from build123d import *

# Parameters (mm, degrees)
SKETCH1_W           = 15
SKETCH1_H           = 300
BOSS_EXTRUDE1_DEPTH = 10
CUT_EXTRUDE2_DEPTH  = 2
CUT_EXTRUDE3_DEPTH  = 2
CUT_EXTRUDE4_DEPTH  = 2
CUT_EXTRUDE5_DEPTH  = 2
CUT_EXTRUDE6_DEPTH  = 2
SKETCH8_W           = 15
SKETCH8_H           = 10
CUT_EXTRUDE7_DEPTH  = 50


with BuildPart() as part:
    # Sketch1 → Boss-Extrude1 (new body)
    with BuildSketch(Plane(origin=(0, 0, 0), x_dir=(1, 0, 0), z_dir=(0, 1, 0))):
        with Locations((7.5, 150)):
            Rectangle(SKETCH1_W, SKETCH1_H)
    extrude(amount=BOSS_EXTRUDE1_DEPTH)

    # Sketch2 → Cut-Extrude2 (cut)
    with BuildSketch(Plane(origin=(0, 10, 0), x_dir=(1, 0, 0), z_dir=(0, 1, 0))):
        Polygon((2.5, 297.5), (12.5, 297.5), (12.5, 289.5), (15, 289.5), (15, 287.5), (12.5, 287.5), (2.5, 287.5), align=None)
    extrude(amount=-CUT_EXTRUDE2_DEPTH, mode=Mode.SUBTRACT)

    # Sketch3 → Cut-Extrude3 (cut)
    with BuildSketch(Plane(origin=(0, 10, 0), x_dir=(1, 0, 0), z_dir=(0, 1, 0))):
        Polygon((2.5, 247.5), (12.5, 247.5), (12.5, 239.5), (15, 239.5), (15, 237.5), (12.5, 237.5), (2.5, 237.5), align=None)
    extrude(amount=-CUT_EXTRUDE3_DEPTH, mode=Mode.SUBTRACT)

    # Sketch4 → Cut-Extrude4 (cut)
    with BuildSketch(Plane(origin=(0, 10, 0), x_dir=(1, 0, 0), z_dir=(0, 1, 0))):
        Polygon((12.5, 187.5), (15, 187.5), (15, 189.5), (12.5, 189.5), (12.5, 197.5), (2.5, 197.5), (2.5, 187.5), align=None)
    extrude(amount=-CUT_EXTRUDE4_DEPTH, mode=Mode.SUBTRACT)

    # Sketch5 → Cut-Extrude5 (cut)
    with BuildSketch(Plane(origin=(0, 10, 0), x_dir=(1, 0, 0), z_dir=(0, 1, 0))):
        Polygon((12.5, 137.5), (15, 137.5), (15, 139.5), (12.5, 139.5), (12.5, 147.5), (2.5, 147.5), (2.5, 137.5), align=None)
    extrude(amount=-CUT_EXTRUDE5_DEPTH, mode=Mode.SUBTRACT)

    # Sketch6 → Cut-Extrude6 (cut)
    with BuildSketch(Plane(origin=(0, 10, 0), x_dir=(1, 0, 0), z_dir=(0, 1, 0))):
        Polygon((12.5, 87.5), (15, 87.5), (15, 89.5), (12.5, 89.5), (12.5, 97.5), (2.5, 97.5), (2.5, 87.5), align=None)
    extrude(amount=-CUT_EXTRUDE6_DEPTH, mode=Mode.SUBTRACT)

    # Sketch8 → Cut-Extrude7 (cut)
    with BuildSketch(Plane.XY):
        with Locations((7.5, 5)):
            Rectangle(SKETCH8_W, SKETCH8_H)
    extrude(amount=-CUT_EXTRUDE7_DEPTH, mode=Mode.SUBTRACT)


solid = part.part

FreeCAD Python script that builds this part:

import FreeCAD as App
import Part
import Sketcher

V = App.Vector

doc = App.newDocument("Part")
params = doc.addObject("Spreadsheet::Sheet", "Params")
for row, (alias, value) in enumerate([
    ("sketch1_width", "15 mm"),
    ("sketch1_height", "300 mm"),
    ("pad1_length", "10 mm"),
    ("sketch2_width", "10 mm"),
    ("sketch2_height", "2 mm"),
    ("sketch2_width2", "12.5 mm"),
    ("pocket1_length", "2 mm"),
    ("sketch3_width", "10 mm"),
    ("sketch3_height", "2 mm"),
    ("sketch3_width2", "12.5 mm"),
    ("pocket2_length", "2 mm"),
    ("sketch4_width", "10 mm"),
    ("sketch4_height", "2 mm"),
    ("sketch4_width2", "2.5 mm"),
    ("pocket3_length", "2 mm"),
    ("sketch5_width", "10 mm"),
    ("sketch5_height", "2 mm"),
    ("sketch5_width2", "2.5 mm"),
    ("pocket4_length", "2 mm"),
    ("sketch6_width", "10 mm"),
    ("sketch6_height", "2 mm"),
    ("sketch6_width2", "2.5 mm"),
    ("pocket5_length", "2 mm"),
    ("sketch7_width", "15 mm"),
    ("sketch7_height", "10 mm"),
    ("pocket6_length", "50 mm"),
], start=1):
    params.set(f"A{row}", alias)
    params.set(f"B{row}", "=" + value)
    params.setAlias(f"B{row}", alias)

body = doc.addObject("PartDesign::Body", "Body")

# Sketch on XZ plane
sketch1 = body.newObject("Sketcher::SketchObject", "Sketch")
sketch1.AttachmentSupport = (doc.getObject("XZ_Plane"), [""])
sketch1.MapMode = "FlatFace"
sketch1.addGeometry(Part.LineSegment(V(0, -300, 0), V(0, 0, 0)), False)
sketch1.addGeometry(Part.LineSegment(V(0, 0, 0), V(15, 0, 0)), False)
sketch1.addGeometry(Part.LineSegment(V(15, 0, 0), V(15, -300, 0)), False)
sketch1.addGeometry(Part.LineSegment(V(15, -300, 0), V(0, -300, 0)), False)
sketch1.addConstraint(Sketcher.Constraint("Coincident", 0, 2, 1, 1))
sketch1.addConstraint(Sketcher.Constraint("Coincident", 1, 2, 2, 1))
sketch1.addConstraint(Sketcher.Constraint("Coincident", 2, 2, 3, 1))
sketch1.addConstraint(Sketcher.Constraint("Coincident", 3, 2, 0, 1))
sketch1.addConstraint(Sketcher.Constraint("Vertical", 0))
sketch1.addConstraint(Sketcher.Constraint("Horizontal", 1))
sketch1.addConstraint(Sketcher.Constraint("Vertical", 2))
sketch1.addConstraint(Sketcher.Constraint("Horizontal", 3))
sketch1.addConstraint(Sketcher.Constraint("Coincident", 0, 2, -1, 1))
sketch1.addConstraint(Sketcher.Constraint("DistanceX", 1, 1, 1, 2, 15.0))
sketch1.addConstraint(Sketcher.Constraint("DistanceY", 0, 1, 0, 2, 300.0))
sketch1.setExpression("Constraints[9]", "Params.sketch1_width")
sketch1.setExpression("Constraints[10]", "Params.sketch1_height")
pad1 = body.newObject("PartDesign::Pad", "Pad")
pad1.Profile = sketch1
pad1.setExpression("Length", "Params.pad1_length")
pad1.Reversed = True

# Sketch on XZ plane
sketch2 = body.newObject("Sketcher::SketchObject", "Sketch001")
sketch2.AttachmentSupport = (doc.getObject("XZ_Plane"), [""])
sketch2.MapMode = "FlatFace"
sketch2.AttachmentOffset = App.Placement(V(0, 0, -10), App.Rotation())
sketch2.addGeometry(Part.LineSegment(V(12.5, -297.5, 0), V(2.5, -297.5, 0)), False)
sketch2.addGeometry(Part.LineSegment(V(2.5, -297.5, 0), V(2.5, -287.5, 0)), False)
sketch2.addGeometry(Part.LineSegment(V(2.5, -287.5, 0), V(15, -287.5, 0)), False)
sketch2.addGeometry(Part.LineSegment(V(15, -287.5, 0), V(15, -289.5, 0)), False)
sketch2.addGeometry(Part.LineSegment(V(15, -289.5, 0), V(12.5, -289.5, 0)), False)
sketch2.addGeometry(Part.LineSegment(V(12.5, -289.5, 0), V(12.5, -297.5, 0)), False)
sketch2.addConstraint(Sketcher.Constraint("Coincident", 0, 2, 1, 1))
sketch2.addConstraint(Sketcher.Constraint("Coincident", 1, 2, 2, 1))
sketch2.addConstraint(Sketcher.Constraint("Coincident", 2, 2, 3, 1))
sketch2.addConstraint(Sketcher.Constraint("Coincident", 3, 2, 4, 1))
sketch2.addConstraint(Sketcher.Constraint("Coincident", 4, 2, 5, 1))
sketch2.addConstraint(Sketcher.Constraint("Coincident", 5, 2, 0, 1))
sketch2.addConstraint(Sketcher.Constraint("Horizontal", 0))
sketch2.addConstraint(Sketcher.Constraint("Vertical", 1))
sketch2.addConstraint(Sketcher.Constraint("Horizontal", 2))
sketch2.addConstraint(Sketcher.Constraint("Vertical", 3))
sketch2.addConstraint(Sketcher.Constraint("Horizontal", 4))
sketch2.addConstraint(Sketcher.Constraint("Vertical", 5))
sketch2.addConstraint(Sketcher.Constraint("Equal", 0, 1))
sketch2.addConstraint(Sketcher.Constraint("DistanceX", 0, 2, 0, 1, 10.0))
sketch2.addConstraint(Sketcher.Constraint("DistanceY", 3, 2, 3, 1, 2.0))
sketch2.addConstraint(Sketcher.Constraint("DistanceX", 2, 1, 2, 2, 12.5))
sketch2.addConstraint(Sketcher.Constraint("DistanceX", -1, 1, 2, 2, 15.0))
sketch2.addConstraint(Sketcher.Constraint("DistanceY", 0, 2, -1, 1, 297.5))
sketch2.setExpression("Constraints[13]", "Params.sketch2_width")
sketch2.setExpression("Constraints[14]", "Params.sketch2_height")
sketch2.setExpression("Constraints[15]", "Params.sketch2_width2")
pocket1 = body.newObject("PartDesign::Pocket", "Pocket")
pocket1.Profile = sketch2
pocket1.setExpression("Length", "Params.pocket1_length")
pocket1.Reversed = True

# Sketch on XZ plane
sketch3 = body.newObject("Sketcher::SketchObject", "Sketch002")
sketch3.AttachmentSupport = (doc.getObject("XZ_Plane"), [""])
sketch3.MapMode = "FlatFace"
sketch3.AttachmentOffset = App.Placement(V(0, 0, -10), App.Rotation())
sketch3.addGeometry(Part.LineSegment(V(12.5, -247.5, 0), V(2.5, -247.5, 0)), False)
sketch3.addGeometry(Part.LineSegment(V(2.5, -247.5, 0), V(2.5, -237.5, 0)), False)
sketch3.addGeometry(Part.LineSegment(V(2.5, -237.5, 0), V(15, -237.5, 0)), False)
sketch3.addGeometry(Part.LineSegment(V(15, -237.5, 0), V(15, -239.5, 0)), False)
sketch3.addGeometry(Part.LineSegment(V(15, -239.5, 0), V(12.5, -239.5, 0)), False)
sketch3.addGeometry(Part.LineSegment(V(12.5, -239.5, 0), V(12.5, -247.5, 0)), False)
sketch3.addConstraint(Sketcher.Constraint("Coincident", 0, 2, 1, 1))
sketch3.addConstraint(Sketcher.Constraint("Coincident", 1, 2, 2, 1))
sketch3.addConstraint(Sketcher.Constraint("Coincident", 2, 2, 3, 1))
sketch3.addConstraint(Sketcher.Constraint("Coincident", 3, 2, 4, 1))
sketch3.addConstraint(Sketcher.Constraint("Coincident", 4, 2, 5, 1))
sketch3.addConstraint(Sketcher.Constraint("Coincident", 5, 2, 0, 1))
sketch3.addConstraint(Sketcher.Constraint("Horizontal", 0))
sketch3.addConstraint(Sketcher.Constraint("Vertical", 1))
sketch3.addConstraint(Sketcher.Constraint("Horizontal", 2))
sketch3.addConstraint(Sketcher.Constraint("Vertical", 3))
sketch3.addConstraint(Sketcher.Constraint("Horizontal", 4))
sketch3.addConstraint(Sketcher.Constraint("Vertical", 5))
sketch3.addConstraint(Sketcher.Constraint("Equal", 0, 1))
sketch3.addConstraint(Sketcher.Constraint("DistanceX", 0, 2, 0, 1, 10.0))
sketch3.addConstraint(Sketcher.Constraint("DistanceY", 3, 2, 3, 1, 2.0))
sketch3.addConstraint(Sketcher.Constraint("DistanceX", 2, 1, 2, 2, 12.5))
sketch3.addConstraint(Sketcher.Constraint("DistanceX", -1, 1, 2, 2, 15.0))
sketch3.addConstraint(Sketcher.Constraint("DistanceY", 0, 2, -1, 1, 247.5))
sketch3.setExpression("Constraints[13]", "Params.sketch3_width")
sketch3.setExpression("Constraints[14]", "Params.sketch3_height")
sketch3.setExpression("Constraints[15]", "Params.sketch3_width2")
pocket2 = body.newObject("PartDesign::Pocket", "Pocket001")
pocket2.Profile = sketch3
pocket2.setExpression("Length", "Params.pocket2_length")
pocket2.Reversed = True

# Sketch on XZ plane
sketch4 = body.newObject("Sketcher::SketchObject", "Sketch003")
sketch4.AttachmentSupport = (doc.getObject("XZ_Plane"), [""])
sketch4.MapMode = "FlatFace"
sketch4.AttachmentOffset = App.Placement(V(0, 0, -10), App.Rotation())
sketch4.addGeometry(Part.LineSegment(V(15, -187.5, 0), V(15, -189.5, 0)), False)
sketch4.addGeometry(Part.LineSegment(V(15, -189.5, 0), V(12.5, -189.5, 0)), False)
sketch4.addGeometry(Part.LineSegment(V(12.5, -189.5, 0), V(12.5, -197.5, 0)), False)
sketch4.addGeometry(Part.LineSegment(V(12.5, -197.5, 0), V(2.5, -197.5, 0)), False)
sketch4.addGeometry(Part.LineSegment(V(2.5, -197.5, 0), V(2.5, -187.5, 0)), False)
sketch4.addGeometry(Part.LineSegment(V(2.5, -187.5, 0), V(15, -187.5, 0)), False)
sketch4.addConstraint(Sketcher.Constraint("Coincident", 0, 2, 1, 1))
sketch4.addConstraint(Sketcher.Constraint("Coincident", 1, 2, 2, 1))
sketch4.addConstraint(Sketcher.Constraint("Coincident", 2, 2, 3, 1))
sketch4.addConstraint(Sketcher.Constraint("Coincident", 3, 2, 4, 1))
sketch4.addConstraint(Sketcher.Constraint("Coincident", 4, 2, 5, 1))
sketch4.addConstraint(Sketcher.Constraint("Coincident", 5, 2, 0, 1))
sketch4.addConstraint(Sketcher.Constraint("Vertical", 0))
sketch4.addConstraint(Sketcher.Constraint("Horizontal", 1))
sketch4.addConstraint(Sketcher.Constraint("Vertical", 2))
sketch4.addConstraint(Sketcher.Constraint("Horizontal", 3))
sketch4.addConstraint(Sketcher.Constraint("Vertical", 4))
sketch4.addConstraint(Sketcher.Constraint("Horizontal", 5))
sketch4.addConstraint(Sketcher.Constraint("Equal", 3, 4))
sketch4.addConstraint(Sketcher.Constraint("DistanceX", 3, 2, 3, 1, 10.0))
sketch4.addConstraint(Sketcher.Constraint("DistanceY", 0, 2, 0, 1, 2.0))
sketch4.addConstraint(Sketcher.Constraint("DistanceX", 1, 2, 1, 1, 2.5))
sketch4.addConstraint(Sketcher.Constraint("DistanceX", -1, 1, 0, 2, 15.0))
sketch4.addConstraint(Sketcher.Constraint("DistanceY", 0, 2, -1, 1, 189.5))
sketch4.setExpression("Constraints[13]", "Params.sketch4_width")
sketch4.setExpression("Constraints[14]", "Params.sketch4_height")
sketch4.setExpression("Constraints[15]", "Params.sketch4_width2")
pocket3 = body.newObject("PartDesign::Pocket", "Pocket002")
pocket3.Profile = sketch4
pocket3.setExpression("Length", "Params.pocket3_length")
pocket3.Reversed = True

# Sketch on XZ plane
sketch5 = body.newObject("Sketcher::SketchObject", "Sketch004")
sketch5.AttachmentSupport = (doc.getObject("XZ_Plane"), [""])
sketch5.MapMode = "FlatFace"
sketch5.AttachmentOffset = App.Placement(V(0, 0, -10), App.Rotation())
sketch5.addGeometry(Part.LineSegment(V(15, -137.5, 0), V(15, -139.5, 0)), False)
sketch5.addGeometry(Part.LineSegment(V(15, -139.5, 0), V(12.5, -139.5, 0)), False)
sketch5.addGeometry(Part.LineSegment(V(12.5, -139.5, 0), V(12.5, -147.5, 0)), False)
sketch5.addGeometry(Part.LineSegment(V(12.5, -147.5, 0), V(2.5, -147.5, 0)), False)
sketch5.addGeometry(Part.LineSegment(V(2.5, -147.5, 0), V(2.5, -137.5, 0)), False)
sketch5.addGeometry(Part.LineSegment(V(2.5, -137.5, 0), V(15, -137.5, 0)), False)
sketch5.addConstraint(Sketcher.Constraint("Coincident", 0, 2, 1, 1))
sketch5.addConstraint(Sketcher.Constraint("Coincident", 1, 2, 2, 1))
sketch5.addConstraint(Sketcher.Constraint("Coincident", 2, 2, 3, 1))
sketch5.addConstraint(Sketcher.Constraint("Coincident", 3, 2, 4, 1))
sketch5.addConstraint(Sketcher.Constraint("Coincident", 4, 2, 5, 1))
sketch5.addConstraint(Sketcher.Constraint("Coincident", 5, 2, 0, 1))
sketch5.addConstraint(Sketcher.Constraint("Vertical", 0))
sketch5.addConstraint(Sketcher.Constraint("Horizontal", 1))
sketch5.addConstraint(Sketcher.Constraint("Vertical", 2))
sketch5.addConstraint(Sketcher.Constraint("Horizontal", 3))
sketch5.addConstraint(Sketcher.Constraint("Vertical", 4))
sketch5.addConstraint(Sketcher.Constraint("Horizontal", 5))
sketch5.addConstraint(Sketcher.Constraint("Equal", 3, 4))
sketch5.addConstraint(Sketcher.Constraint("DistanceX", 3, 2, 3, 1, 10.0))
sketch5.addConstraint(Sketcher.Constraint("DistanceY", 0, 2, 0, 1, 2.0))
sketch5.addConstraint(Sketcher.Constraint("DistanceX", 1, 2, 1, 1, 2.5))
sketch5.addConstraint(Sketcher.Constraint("DistanceX", -1, 1, 0, 2, 15.0))
sketch5.addConstraint(Sketcher.Constraint("DistanceY", 0, 2, -1, 1, 139.5))
sketch5.setExpression("Constraints[13]", "Params.sketch5_width")
sketch5.setExpression("Constraints[14]", "Params.sketch5_height")
sketch5.setExpression("Constraints[15]", "Params.sketch5_width2")
pocket4 = body.newObject("PartDesign::Pocket", "Pocket003")
pocket4.Profile = sketch5
pocket4.setExpression("Length", "Params.pocket4_length")
pocket4.Reversed = True

# Sketch on XZ plane
sketch6 = body.newObject("Sketcher::SketchObject", "Sketch005")
sketch6.AttachmentSupport = (doc.getObject("XZ_Plane"), [""])
sketch6.MapMode = "FlatFace"
sketch6.AttachmentOffset = App.Placement(V(0, 0, -10), App.Rotation())
sketch6.addGeometry(Part.LineSegment(V(15, -87.5, 0), V(15, -89.5, 0)), False)
sketch6.addGeometry(Part.LineSegment(V(15, -89.5, 0), V(12.5, -89.5, 0)), False)
sketch6.addGeometry(Part.LineSegment(V(12.5, -89.5, 0), V(12.5, -97.5, 0)), False)
sketch6.addGeometry(Part.LineSegment(V(12.5, -97.5, 0), V(2.5, -97.5, 0)), False)
sketch6.addGeometry(Part.LineSegment(V(2.5, -97.5, 0), V(2.5, -87.5, 0)), False)
sketch6.addGeometry(Part.LineSegment(V(2.5, -87.5, 0), V(15, -87.5, 0)), False)
sketch6.addConstraint(Sketcher.Constraint("Coincident", 0, 2, 1, 1))
sketch6.addConstraint(Sketcher.Constraint("Coincident", 1, 2, 2, 1))
sketch6.addConstraint(Sketcher.Constraint("Coincident", 2, 2, 3, 1))
sketch6.addConstraint(Sketcher.Constraint("Coincident", 3, 2, 4, 1))
sketch6.addConstraint(Sketcher.Constraint("Coincident", 4, 2, 5, 1))
sketch6.addConstraint(Sketcher.Constraint("Coincident", 5, 2, 0, 1))
sketch6.addConstraint(Sketcher.Constraint("Vertical", 0))
sketch6.addConstraint(Sketcher.Constraint("Horizontal", 1))
sketch6.addConstraint(Sketcher.Constraint("Vertical", 2))
sketch6.addConstraint(Sketcher.Constraint("Horizontal", 3))
sketch6.addConstraint(Sketcher.Constraint("Vertical", 4))
sketch6.addConstraint(Sketcher.Constraint("Horizontal", 5))
sketch6.addConstraint(Sketcher.Constraint("Equal", 3, 4))
sketch6.addConstraint(Sketcher.Constraint("DistanceX", 3, 2, 3, 1, 10.0))
sketch6.addConstraint(Sketcher.Constraint("DistanceY", 0, 2, 0, 1, 2.0))
sketch6.addConstraint(Sketcher.Constraint("DistanceX", 1, 2, 1, 1, 2.5))
sketch6.addConstraint(Sketcher.Constraint("DistanceX", -1, 1, 0, 2, 15.0))
sketch6.addConstraint(Sketcher.Constraint("DistanceY", 0, 2, -1, 1, 89.5))
sketch6.setExpression("Constraints[13]", "Params.sketch6_width")
sketch6.setExpression("Constraints[14]", "Params.sketch6_height")
sketch6.setExpression("Constraints[15]", "Params.sketch6_width2")
pocket5 = body.newObject("PartDesign::Pocket", "Pocket004")
pocket5.Profile = sketch6
pocket5.setExpression("Length", "Params.pocket5_length")
pocket5.Reversed = True

# Sketch on XY plane
sketch7 = body.newObject("Sketcher::SketchObject", "Sketch006")
sketch7.AttachmentSupport = (doc.getObject("XY_Plane"), [""])
sketch7.MapMode = "FlatFace"
sketch7.addGeometry(Part.LineSegment(V(0, 10, 0), V(0, 0, 0)), False)
sketch7.addGeometry(Part.LineSegment(V(0, 0, 0), V(15, 0, 0)), False)
sketch7.addGeometry(Part.LineSegment(V(15, 0, 0), V(15, 10, 0)), False)
sketch7.addGeometry(Part.LineSegment(V(15, 10, 0), V(0, 10, 0)), False)
sketch7.addConstraint(Sketcher.Constraint("Coincident", 0, 2, 1, 1))
sketch7.addConstraint(Sketcher.Constraint("Coincident", 1, 2, 2, 1))
sketch7.addConstraint(Sketcher.Constraint("Coincident", 2, 2, 3, 1))
sketch7.addConstraint(Sketcher.Constraint("Coincident", 3, 2, 0, 1))
sketch7.addConstraint(Sketcher.Constraint("Vertical", 0))
sketch7.addConstraint(Sketcher.Constraint("Horizontal", 1))
sketch7.addConstraint(Sketcher.Constraint("Vertical", 2))
sketch7.addConstraint(Sketcher.Constraint("Horizontal", 3))
sketch7.addConstraint(Sketcher.Constraint("Coincident", 0, 2, -1, 1))
sketch7.addConstraint(Sketcher.Constraint("DistanceX", 1, 1, 1, 2, 15.0))
sketch7.addConstraint(Sketcher.Constraint("DistanceY", 0, 2, 0, 1, 10.0))
sketch7.setExpression("Constraints[9]", "Params.sketch7_width")
sketch7.setExpression("Constraints[10]", "Params.sketch7_height")
pocket6 = body.newObject("PartDesign::Pocket", "Pocket005")
pocket6.Profile = sketch7
pocket6.setExpression("Length", "Params.pocket6_length")

doc.recompute()
